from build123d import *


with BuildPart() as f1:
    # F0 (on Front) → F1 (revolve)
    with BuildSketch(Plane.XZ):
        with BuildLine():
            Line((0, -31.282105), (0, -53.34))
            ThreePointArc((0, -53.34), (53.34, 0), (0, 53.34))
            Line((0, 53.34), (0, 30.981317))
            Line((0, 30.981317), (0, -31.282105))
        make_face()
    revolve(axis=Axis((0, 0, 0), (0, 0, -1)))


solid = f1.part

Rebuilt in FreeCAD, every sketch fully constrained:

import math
import FreeCAD as App
import Part
import Sketcher
from FreeCAD import Vector
Q = App.Units.Quantity

doc = App.newDocument("Part")
params = doc.addObject("Spreadsheet::Sheet", "Params")
for row, (alias, value) in enumerate([
    ("sketch1_radius", "2.1 in"),
    ("revolution_angle", "360 deg"),
], start=1):
    params.set(f"A{row}", alias)
    params.set(f"B{row}", "=" + value)
    params.setAlias(f"B{row}", alias)

body = doc.addObject("PartDesign::Body", "Body")

sketch1 = body.newObject("Sketcher::SketchObject", "Sketch")
sketch1.AttachmentSupport = (doc.getObject("XZ_Plane"), [""])
sketch1.MapMode = "FlatFace"
sketch1.addGeometry([
    Part.ArcOfCircle(Part.Circle(Vector(0, 0, 0), Vector(0, 0, 1), 53.34), math.radians(-90), math.radians(90)),
    Part.LineSegment(Vector(0, 53.34, 0), Vector(0, -53.34, 0)),
], False)
sketch1.addConstraint([
    Sketcher.Constraint("Coincident", 0, 1, 1, 2),
    Sketcher.Constraint("Coincident", 1, 1, 0, 2),
    Sketcher.Constraint("Vertical", 1),
    Sketcher.Constraint("Coincident", 0, 3, -1, 1),
    Sketcher.Constraint("PointOnObject", 0, 1, -2),
    Sketcher.Constraint("Radius", 0, Q("2.1 in")),
])
sketch1.setExpression("Constraints[5]", "Params.sketch1_radius")
revolution = body.newObject("PartDesign::Revolution", "Revolution")
revolution.Profile = sketch1
revolution.ReferenceAxis = (sketch1, ["V_Axis"])
revolution.setExpression("Angle", "Params.revolution_angle")

doc.recompute()
